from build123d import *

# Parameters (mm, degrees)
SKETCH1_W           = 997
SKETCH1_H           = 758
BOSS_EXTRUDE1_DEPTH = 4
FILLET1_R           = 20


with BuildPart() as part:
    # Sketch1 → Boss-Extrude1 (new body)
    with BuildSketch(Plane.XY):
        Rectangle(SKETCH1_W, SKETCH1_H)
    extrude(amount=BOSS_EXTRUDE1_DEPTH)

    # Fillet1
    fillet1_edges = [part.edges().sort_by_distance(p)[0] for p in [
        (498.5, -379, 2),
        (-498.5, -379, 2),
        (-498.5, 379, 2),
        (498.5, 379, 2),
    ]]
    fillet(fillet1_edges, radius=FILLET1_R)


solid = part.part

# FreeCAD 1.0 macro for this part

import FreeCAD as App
import Part
import Sketcher

V = App.Vector


def edges_at(feature, points):
    """Names of the edges that pass closest to the given points."""
    edges = feature.Shape.Edges
    near = lambda p: min(range(len(edges)), key=lambda i: edges[i].distToShape(Part.Vertex(*p))[0])
    return sorted({f"Edge{near(p) + 1}" for p in points})

doc = App.newDocument("Part")
body = doc.addObject("PartDesign::Body", "Body")

# Sketch on XY plane
sketch1 = doc.addObject("Sketcher::SketchObject", "Sketch")
body.addObject(sketch1)
sketch1.AttachmentSupport = (doc.XY_Plane, [""])
sketch1.MapMode = "FlatFace"
sketch1.addGeometry([
    Part.LineSegment(V(-498, 379, 0), V(-498, -379, 0)),
    Part.LineSegment(V(-498, -379, 0), V(498, -379, 0)),
    Part.LineSegment(V(498, -379, 0), V(498, 379, 0)),
    Part.LineSegment(V(498, 379, 0), V(-498, 379, 0)),
], False)
sketch1.addConstraint([
    Sketcher.Constraint("Coincident", 0, 2, 1, 1),
    Sketcher.Constraint("Coincident", 1, 2, 2, 1),
    Sketcher.Constraint("Coincident", 2, 2, 3, 1),
    Sketcher.Constraint("Coincident", 3, 2, 0, 1),
    Sketcher.Constraint("Vertical", 0),
    Sketcher.Constraint("Horizontal", 1),
    Sketcher.Constraint("Vertical", 2),
    Sketcher.Constraint("Horizontal", 3),
    Sketcher.Constraint("Symmetric", 0, 2, 2, 2, -1, 1),
    Sketcher.Constraint("DistanceX", 1, 1, 1, 2, 997.0),
    Sketcher.Constraint("DistanceY", 0, 2, 0, 1, 758.0),
])
pad1 = doc.addObject("PartDesign::Pad", "Pad")
body.addObject(pad1)
pad1.Profile = sketch1
pad1.Length = 4
doc.recompute()

fillet = doc.addObject("PartDesign::Fillet", "Fillet")
body.addObject(fillet)
fillet.Base = (pad1, edges_at(pad1, [
    (498.5, -379, 2),
    (-498.5, -379, 2),
    (-498.5, 379, 2),
    (498.5, 379, 2),
]))
fillet.Radius = 20

doc.recompute()
